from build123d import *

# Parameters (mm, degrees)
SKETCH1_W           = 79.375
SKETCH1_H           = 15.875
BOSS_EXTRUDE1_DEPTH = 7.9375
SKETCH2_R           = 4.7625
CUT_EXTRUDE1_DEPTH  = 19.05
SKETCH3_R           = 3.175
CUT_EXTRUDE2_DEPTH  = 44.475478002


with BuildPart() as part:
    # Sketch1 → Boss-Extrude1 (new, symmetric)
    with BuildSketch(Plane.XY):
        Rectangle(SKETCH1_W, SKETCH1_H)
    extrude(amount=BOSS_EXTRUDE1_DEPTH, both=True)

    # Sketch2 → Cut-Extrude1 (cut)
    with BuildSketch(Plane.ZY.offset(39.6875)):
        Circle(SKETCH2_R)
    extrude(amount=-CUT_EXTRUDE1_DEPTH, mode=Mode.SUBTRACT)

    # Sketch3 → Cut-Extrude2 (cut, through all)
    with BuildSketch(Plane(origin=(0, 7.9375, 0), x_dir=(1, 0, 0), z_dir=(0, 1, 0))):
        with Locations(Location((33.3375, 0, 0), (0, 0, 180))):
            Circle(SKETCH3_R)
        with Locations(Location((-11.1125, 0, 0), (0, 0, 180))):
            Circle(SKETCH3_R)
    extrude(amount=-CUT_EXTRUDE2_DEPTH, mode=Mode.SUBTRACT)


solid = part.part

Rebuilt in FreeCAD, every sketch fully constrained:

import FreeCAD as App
import Part
import Sketcher

V = App.Vector
Q = App.Units.Quantity


def add_polygon(sketch, points):
    """Adds a closed chain of lines whose ends are joined by coincident constraints."""
    first, n = sketch.GeometryCount, len(points)
    for a, b in zip(points, points[1:] + points[:1]):
        sketch.addGeometry(Part.LineSegment(App.Vector(*a, 0), App.Vector(*b, 0)), False)
    for i in range(n):
        sketch.addConstraint(Sketcher.Constraint("Coincident", first + i, 2, first + (i + 1) % n, 1))

doc = App.newDocument("Part")
params = doc.addObject("Spreadsheet::Sheet", "Params")
for row, (alias, value) in enumerate([
    ("sketch1_width", "3.125 in"),
    ("sketch1_height", "0.625 in"),
    ("pad1_length", "0.625 in"),
    ("sketch2_diameter", "0.375 in"),
    ("pocket1_length", "0.75 in"),
    ("sketch3_diameter", "0.25 in"),
], start=1):
    params.set(f"A{row}", alias)
    params.set(f"B{row}", "=" + value)
    params.setAlias(f"B{row}", alias)

body = doc.addObject("PartDesign::Body", "Body")

sketch1 = body.newObject("Sketcher::SketchObject", "Sketch")
sketch1.AttachmentSupport = (doc.getObject("XY_Plane"), [""])
sketch1.MapMode = "FlatFace"
add_polygon(sketch1, [(-39.6875, 7.9375), (-39.6875, -7.9375), (39.6875, -7.9375), (39.6875, 7.9375)])
sketch1.addConstraint([
    Sketcher.Constraint("Vertical", 0),
    Sketcher.Constraint("Horizontal", 1),
    Sketcher.Constraint("Vertical", 2),
    Sketcher.Constraint("Horizontal", 3),
    Sketcher.Constraint("Symmetric", 0, 2, 2, 2, -1, 1),
    Sketcher.Constraint("DistanceX", 1, 1, 1, 2, Q("3.125 in")),
    Sketcher.Constraint("DistanceY", 0, 2, 0, 1, Q("0.625 in")),
])
sketch1.setExpression("Constraints[9]", "Params.sketch1_width")
sketch1.setExpression("Constraints[10]", "Params.sketch1_height")
pad1 = body.newObject("PartDesign::Pad", "Pad")
pad1.Profile = sketch1
pad1.setExpression("Length", "Params.pad1_length")
pad1.Midplane = True

sketch2 = body.newObject("Sketcher::SketchObject", "Sketch001")
sketch2.AttachmentSupport = (doc.getObject("YZ_Plane"), [""])
sketch2.MapMode = "FlatFace"
sketch2.AttachmentOffset = App.Placement(V(0, 0, -1.5625 * 25.4), App.Rotation())
sketch2.addGeometry(Part.Circle(V(0, 0, 0), V(0, 0, 1), 4.7625), False)
sketch2.addConstraint([
    Sketcher.Constraint("Coincident", 0, 3, -1, 1),
    Sketcher.Constraint("Diameter", 0, Q("0.375 in")),
])
sketch2.setExpression("Constraints[1]", "Params.sketch2_diameter")
pocket1 = body.newObject("PartDesign::Pocket", "Pocket")
pocket1.Profile = sketch2
pocket1.setExpression("Length", "Params.pocket1_length")
pocket1.Reversed = True

sketch3 = body.newObject("Sketcher::SketchObject", "Sketch002")
sketch3.AttachmentSupport = (doc.getObject("XZ_Plane"), [""])
sketch3.MapMode = "FlatFace"
sketch3.AttachmentOffset = App.Placement(V(0, 0, -0.3125 * 25.4), App.Rotation())
sketch3.addGeometry([
    Part.Circle(V(33.3375, 0, 0), V(0, 0, 1), 3.175),
    Part.Circle(V(-11.1125, 0, 0), V(0, 0, 1), 3.175),
], False)
sketch3.addConstraint([
    Sketcher.Constraint("Equal", 0, 1),
    Sketcher.Constraint("PointOnObject", 0, 3, -1),
    Sketcher.Constraint("PointOnObject", 1, 3, -1),
    Sketcher.Constraint("Diameter", 0, Q("0.25 in")),
    Sketcher.Constraint("DistanceX", 1, 3, 0, 3, Q("1.75 in")),
    Sketcher.Constraint("DistanceX", -1, 1, 0, 3, Q("1.3125 in")),
])
sketch3.setExpression("Constraints[3]", "Params.sketch3_diameter")
pocket2 = body.newObject("PartDesign::Pocket", "Pocket001")
pocket2.Profile = sketch3
pocket2.Type = "ThroughAll"
pocket2.Reversed = True

doc.recompute()
